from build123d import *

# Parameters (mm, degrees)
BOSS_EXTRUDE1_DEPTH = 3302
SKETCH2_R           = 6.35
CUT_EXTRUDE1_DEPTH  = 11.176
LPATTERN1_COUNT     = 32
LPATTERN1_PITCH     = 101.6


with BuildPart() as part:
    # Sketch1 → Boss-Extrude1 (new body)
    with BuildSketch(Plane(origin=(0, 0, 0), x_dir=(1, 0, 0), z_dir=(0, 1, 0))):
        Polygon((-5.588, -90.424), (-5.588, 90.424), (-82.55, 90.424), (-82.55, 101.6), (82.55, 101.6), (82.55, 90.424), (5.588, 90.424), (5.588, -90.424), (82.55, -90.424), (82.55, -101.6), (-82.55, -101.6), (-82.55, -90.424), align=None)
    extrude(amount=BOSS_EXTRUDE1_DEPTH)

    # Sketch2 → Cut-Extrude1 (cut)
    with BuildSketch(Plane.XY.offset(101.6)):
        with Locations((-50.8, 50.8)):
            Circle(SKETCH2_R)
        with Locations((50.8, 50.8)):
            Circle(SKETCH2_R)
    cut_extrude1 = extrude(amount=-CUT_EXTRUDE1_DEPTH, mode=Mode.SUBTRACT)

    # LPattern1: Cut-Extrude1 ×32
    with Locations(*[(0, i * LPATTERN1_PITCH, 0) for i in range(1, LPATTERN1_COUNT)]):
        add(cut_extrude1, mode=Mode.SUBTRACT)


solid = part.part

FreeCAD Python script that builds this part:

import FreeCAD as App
import Part
import Sketcher
Q = App.Units.Quantity

doc = App.newDocument("Part")
params = doc.addObject("Spreadsheet::Sheet", "Params")
for row, (alias, value) in enumerate([
    ("sketch1_width", "6.5 in"),
    ("sketch1_width2", "3.03 in"),
    ("sketch1_height", "7.12 in"),
    ("pad1_length", "130 in"),
    ("sketch2_diameter", "0.5 in"),
    ("pocket1_length", "0.44 in"),
    ("linearpattern_pitch", "4 in"),
], start=1):
    params.set(f"A{row}", alias)
    params.set(f"B{row}", "=" + value)
    params.setAlias(f"B{row}", alias)

body = doc.addObject("PartDesign::Body", "Body")

# Sketch on XZ plane
sketch1 = doc.addObject("Sketcher::SketchObject", "Sketch")
body.addObject(sketch1)
sketch1.AttachmentSupport = (doc.XZ_Plane, [""])
sketch1.MapMode = "FlatFace"
sketch1.addGeometry(Part.LineSegment(App.Vector(-6, -90, 0), App.Vector(-6, 90, 0)), False)
sketch1.addGeometry(Part.LineSegment(App.Vector(-6, 90, 0), App.Vector(-83, 90, 0)), False)
sketch1.addGeometry(Part.LineSegment(App.Vector(-83, 90, 0), App.Vector(-83, 102, 0)), False)
sketch1.addGeometry(Part.LineSegment(App.Vector(-83, 102, 0), App.Vector(83, 102, 0)), False)
sketch1.addGeometry(Part.LineSegment(App.Vector(83, 102, 0), App.Vector(83, 90, 0)), False)
sketch1.addGeometry(Part.LineSegment(App.Vector(83, 90, 0), App.Vector(6, 90, 0)), False)
sketch1.addGeometry(Part.LineSegment(App.Vector(6, 90, 0), App.Vector(6, -90, 0)), False)
sketch1.addGeometry(Part.LineSegment(App.Vector(6, -90, 0), App.Vector(83, -90, 0)), False)
sketch1.addGeometry(Part.LineSegment(App.Vector(83, -90, 0), App.Vector(83, -102, 0)), False)
sketch1.addGeometry(Part.LineSegment(App.Vector(83, -102, 0), App.Vector(-83, -102, 0)), False)
sketch1.addGeometry(Part.LineSegment(App.Vector(-83, -102, 0), App.Vector(-83, -90, 0)), False)
sketch1.addGeometry(Part.LineSegment(App.Vector(-83, -90, 0), App.Vector(-6, -90, 0)), False)
sketch1.addConstraint(Sketcher.Constraint("Coincident", 0, 2, 1, 1))
sketch1.addConstraint(Sketcher.Constraint("Coincident", 1, 2, 2, 1))
sketch1.addConstraint(Sketcher.Constraint("Coincident", 2, 2, 3, 1))
sketch1.addConstraint(Sketcher.Constraint("Coincident", 3, 2, 4, 1))
sketch1.addConstraint(Sketcher.Constraint("Coincident", 4, 2, 5, 1))
sketch1.addConstraint(Sketcher.Constraint("Coincident", 5, 2, 6, 1))
sketch1.addConstraint(Sketcher.Constraint("Coincident", 6, 2, 7, 1))
sketch1.addConstraint(Sketcher.Constraint("Coincident", 7, 2, 8, 1))
sketch1.addConstraint(Sketcher.Constraint("Coincident", 8, 2, 9, 1))
sketch1.addConstraint(Sketcher.Constraint("Coincident", 9, 2, 10, 1))
sketch1.addConstraint(Sketcher.Constraint("Coincident", 10, 2, 11, 1))
sketch1.addConstraint(Sketcher.Constraint("Coincident", 11, 2, 0, 1))
sketch1.addConstraint(Sketcher.Constraint("Vertical", 0))
sketch1.addConstraint(Sketcher.Constraint("Horizontal", 1))
sketch1.addConstraint(Sketcher.Constraint("Vertical", 2))
sketch1.addConstraint(Sketcher.Constraint("Horizontal", 3))
sketch1.addConstraint(Sketcher.Constraint("Vertical", 4))
sketch1.addConstraint(Sketcher.Constraint("Horizontal", 5))
sketch1.addConstraint(Sketcher.Constraint("Vertical", 6))
sketch1.addConstraint(Sketcher.Constraint("Horizontal", 7))
sketch1.addConstraint(Sketcher.Constraint("Vertical", 8))
sketch1.addConstraint(Sketcher.Constraint("Horizontal", 9))
sketch1.addConstraint(Sketcher.Constraint("Vertical", 10))
sketch1.addConstraint(Sketcher.Constraint("Horizontal", 11))
sketch1.addConstraint(Sketcher.Constraint("Symmetric", 0, 2, 6, 2, -1, 1))
sketch1.addConstraint(Sketcher.Constraint("Symmetric", 2, 2, 8, 2, -1, 1))
sketch1.addConstraint(Sketcher.Constraint("Symmetric", 4, 2, 10, 2, -1, 1))
sketch1.addConstraint(Sketcher.Constraint("Symmetric", 1, 2, 4, 2, -2))
sketch1.addConstraint(Sketcher.Constraint("DistanceX", 3, 1, 3, 2, Q("6.5 in")))
sketch1.addConstraint(Sketcher.Constraint("DistanceY", -1, 1, 2, 2, Q("4 in")))
sketch1.addConstraint(Sketcher.Constraint("DistanceX", 1, 2, 1, 1, Q("3.03 in")))
sketch1.addConstraint(Sketcher.Constraint("DistanceY", 0, 1, 0, 2, Q("7.12 in")))
sketch1.setExpression("Constraints[28]", "Params.sketch1_width")
sketch1.setExpression("Constraints[30]", "Params.sketch1_width2")
sketch1.setExpression("Constraints[31]", "Params.sketch1_height")
pad1 = doc.addObject("PartDesign::Pad", "Pad")
body.addObject(pad1)
pad1.Profile = sketch1
pad1.setExpression("Length", "Params.pad1_length")
pad1.Reversed = True

# Sketch on XY plane
sketch2 = doc.addObject("Sketcher::SketchObject", "Sketch001")
body.addObject(sketch2)
sketch2.AttachmentSupport = (doc.XY_Plane, [""])
sketch2.MapMode = "FlatFace"
sketch2.AttachmentOffset = App.Placement(App.Vector(0, 0, 4 * 25.4), App.Rotation())
sketch2.addGeometry(Part.Circle(App.Vector(-51, 51, 0), App.Vector(0, 0, 1), 6), False)
sketch2.addGeometry(Part.Circle(App.Vector(51, 51, 0), App.Vector(0, 0, 1), 6), False)
sketch2.addConstraint(Sketcher.Constraint("Equal", 0, 1))
sketch2.addConstraint(Sketcher.Constraint("Symmetric", 0, 3, 1, 3, -2))
sketch2.addConstraint(Sketcher.Constraint("Diameter", 0, Q("0.5 in")))
sketch2.addConstraint(Sketcher.Constraint("DistanceX", 0, 3, -1, 1, Q("2 in")))
sketch2.addConstraint(Sketcher.Constraint("DistanceY", -1, 1, 0, 3, Q("2 in")))
sketch2.setExpression("Constraints[2]", "Params.sketch2_diameter")
pocket1 = doc.addObject("PartDesign::Pocket", "Pocket")
body.addObject(pocket1)
pocket1.Profile = sketch2
pocket1.setExpression("Length", "Params.pocket1_length")
doc.recompute()

linearpattern = doc.addObject("PartDesign::LinearPattern", "LinearPattern")
body.addObject(linearpattern)
linearpattern.Originals = [pocket1]
linearpattern.Direction = (doc.Y_Axis, [""])
linearpattern.Mode = "offset"
linearpattern.setExpression("Offset", "Params.linearpattern_pitch")
linearpattern.Occurrences = 32
body.Tip = linearpattern

doc.recompute()
